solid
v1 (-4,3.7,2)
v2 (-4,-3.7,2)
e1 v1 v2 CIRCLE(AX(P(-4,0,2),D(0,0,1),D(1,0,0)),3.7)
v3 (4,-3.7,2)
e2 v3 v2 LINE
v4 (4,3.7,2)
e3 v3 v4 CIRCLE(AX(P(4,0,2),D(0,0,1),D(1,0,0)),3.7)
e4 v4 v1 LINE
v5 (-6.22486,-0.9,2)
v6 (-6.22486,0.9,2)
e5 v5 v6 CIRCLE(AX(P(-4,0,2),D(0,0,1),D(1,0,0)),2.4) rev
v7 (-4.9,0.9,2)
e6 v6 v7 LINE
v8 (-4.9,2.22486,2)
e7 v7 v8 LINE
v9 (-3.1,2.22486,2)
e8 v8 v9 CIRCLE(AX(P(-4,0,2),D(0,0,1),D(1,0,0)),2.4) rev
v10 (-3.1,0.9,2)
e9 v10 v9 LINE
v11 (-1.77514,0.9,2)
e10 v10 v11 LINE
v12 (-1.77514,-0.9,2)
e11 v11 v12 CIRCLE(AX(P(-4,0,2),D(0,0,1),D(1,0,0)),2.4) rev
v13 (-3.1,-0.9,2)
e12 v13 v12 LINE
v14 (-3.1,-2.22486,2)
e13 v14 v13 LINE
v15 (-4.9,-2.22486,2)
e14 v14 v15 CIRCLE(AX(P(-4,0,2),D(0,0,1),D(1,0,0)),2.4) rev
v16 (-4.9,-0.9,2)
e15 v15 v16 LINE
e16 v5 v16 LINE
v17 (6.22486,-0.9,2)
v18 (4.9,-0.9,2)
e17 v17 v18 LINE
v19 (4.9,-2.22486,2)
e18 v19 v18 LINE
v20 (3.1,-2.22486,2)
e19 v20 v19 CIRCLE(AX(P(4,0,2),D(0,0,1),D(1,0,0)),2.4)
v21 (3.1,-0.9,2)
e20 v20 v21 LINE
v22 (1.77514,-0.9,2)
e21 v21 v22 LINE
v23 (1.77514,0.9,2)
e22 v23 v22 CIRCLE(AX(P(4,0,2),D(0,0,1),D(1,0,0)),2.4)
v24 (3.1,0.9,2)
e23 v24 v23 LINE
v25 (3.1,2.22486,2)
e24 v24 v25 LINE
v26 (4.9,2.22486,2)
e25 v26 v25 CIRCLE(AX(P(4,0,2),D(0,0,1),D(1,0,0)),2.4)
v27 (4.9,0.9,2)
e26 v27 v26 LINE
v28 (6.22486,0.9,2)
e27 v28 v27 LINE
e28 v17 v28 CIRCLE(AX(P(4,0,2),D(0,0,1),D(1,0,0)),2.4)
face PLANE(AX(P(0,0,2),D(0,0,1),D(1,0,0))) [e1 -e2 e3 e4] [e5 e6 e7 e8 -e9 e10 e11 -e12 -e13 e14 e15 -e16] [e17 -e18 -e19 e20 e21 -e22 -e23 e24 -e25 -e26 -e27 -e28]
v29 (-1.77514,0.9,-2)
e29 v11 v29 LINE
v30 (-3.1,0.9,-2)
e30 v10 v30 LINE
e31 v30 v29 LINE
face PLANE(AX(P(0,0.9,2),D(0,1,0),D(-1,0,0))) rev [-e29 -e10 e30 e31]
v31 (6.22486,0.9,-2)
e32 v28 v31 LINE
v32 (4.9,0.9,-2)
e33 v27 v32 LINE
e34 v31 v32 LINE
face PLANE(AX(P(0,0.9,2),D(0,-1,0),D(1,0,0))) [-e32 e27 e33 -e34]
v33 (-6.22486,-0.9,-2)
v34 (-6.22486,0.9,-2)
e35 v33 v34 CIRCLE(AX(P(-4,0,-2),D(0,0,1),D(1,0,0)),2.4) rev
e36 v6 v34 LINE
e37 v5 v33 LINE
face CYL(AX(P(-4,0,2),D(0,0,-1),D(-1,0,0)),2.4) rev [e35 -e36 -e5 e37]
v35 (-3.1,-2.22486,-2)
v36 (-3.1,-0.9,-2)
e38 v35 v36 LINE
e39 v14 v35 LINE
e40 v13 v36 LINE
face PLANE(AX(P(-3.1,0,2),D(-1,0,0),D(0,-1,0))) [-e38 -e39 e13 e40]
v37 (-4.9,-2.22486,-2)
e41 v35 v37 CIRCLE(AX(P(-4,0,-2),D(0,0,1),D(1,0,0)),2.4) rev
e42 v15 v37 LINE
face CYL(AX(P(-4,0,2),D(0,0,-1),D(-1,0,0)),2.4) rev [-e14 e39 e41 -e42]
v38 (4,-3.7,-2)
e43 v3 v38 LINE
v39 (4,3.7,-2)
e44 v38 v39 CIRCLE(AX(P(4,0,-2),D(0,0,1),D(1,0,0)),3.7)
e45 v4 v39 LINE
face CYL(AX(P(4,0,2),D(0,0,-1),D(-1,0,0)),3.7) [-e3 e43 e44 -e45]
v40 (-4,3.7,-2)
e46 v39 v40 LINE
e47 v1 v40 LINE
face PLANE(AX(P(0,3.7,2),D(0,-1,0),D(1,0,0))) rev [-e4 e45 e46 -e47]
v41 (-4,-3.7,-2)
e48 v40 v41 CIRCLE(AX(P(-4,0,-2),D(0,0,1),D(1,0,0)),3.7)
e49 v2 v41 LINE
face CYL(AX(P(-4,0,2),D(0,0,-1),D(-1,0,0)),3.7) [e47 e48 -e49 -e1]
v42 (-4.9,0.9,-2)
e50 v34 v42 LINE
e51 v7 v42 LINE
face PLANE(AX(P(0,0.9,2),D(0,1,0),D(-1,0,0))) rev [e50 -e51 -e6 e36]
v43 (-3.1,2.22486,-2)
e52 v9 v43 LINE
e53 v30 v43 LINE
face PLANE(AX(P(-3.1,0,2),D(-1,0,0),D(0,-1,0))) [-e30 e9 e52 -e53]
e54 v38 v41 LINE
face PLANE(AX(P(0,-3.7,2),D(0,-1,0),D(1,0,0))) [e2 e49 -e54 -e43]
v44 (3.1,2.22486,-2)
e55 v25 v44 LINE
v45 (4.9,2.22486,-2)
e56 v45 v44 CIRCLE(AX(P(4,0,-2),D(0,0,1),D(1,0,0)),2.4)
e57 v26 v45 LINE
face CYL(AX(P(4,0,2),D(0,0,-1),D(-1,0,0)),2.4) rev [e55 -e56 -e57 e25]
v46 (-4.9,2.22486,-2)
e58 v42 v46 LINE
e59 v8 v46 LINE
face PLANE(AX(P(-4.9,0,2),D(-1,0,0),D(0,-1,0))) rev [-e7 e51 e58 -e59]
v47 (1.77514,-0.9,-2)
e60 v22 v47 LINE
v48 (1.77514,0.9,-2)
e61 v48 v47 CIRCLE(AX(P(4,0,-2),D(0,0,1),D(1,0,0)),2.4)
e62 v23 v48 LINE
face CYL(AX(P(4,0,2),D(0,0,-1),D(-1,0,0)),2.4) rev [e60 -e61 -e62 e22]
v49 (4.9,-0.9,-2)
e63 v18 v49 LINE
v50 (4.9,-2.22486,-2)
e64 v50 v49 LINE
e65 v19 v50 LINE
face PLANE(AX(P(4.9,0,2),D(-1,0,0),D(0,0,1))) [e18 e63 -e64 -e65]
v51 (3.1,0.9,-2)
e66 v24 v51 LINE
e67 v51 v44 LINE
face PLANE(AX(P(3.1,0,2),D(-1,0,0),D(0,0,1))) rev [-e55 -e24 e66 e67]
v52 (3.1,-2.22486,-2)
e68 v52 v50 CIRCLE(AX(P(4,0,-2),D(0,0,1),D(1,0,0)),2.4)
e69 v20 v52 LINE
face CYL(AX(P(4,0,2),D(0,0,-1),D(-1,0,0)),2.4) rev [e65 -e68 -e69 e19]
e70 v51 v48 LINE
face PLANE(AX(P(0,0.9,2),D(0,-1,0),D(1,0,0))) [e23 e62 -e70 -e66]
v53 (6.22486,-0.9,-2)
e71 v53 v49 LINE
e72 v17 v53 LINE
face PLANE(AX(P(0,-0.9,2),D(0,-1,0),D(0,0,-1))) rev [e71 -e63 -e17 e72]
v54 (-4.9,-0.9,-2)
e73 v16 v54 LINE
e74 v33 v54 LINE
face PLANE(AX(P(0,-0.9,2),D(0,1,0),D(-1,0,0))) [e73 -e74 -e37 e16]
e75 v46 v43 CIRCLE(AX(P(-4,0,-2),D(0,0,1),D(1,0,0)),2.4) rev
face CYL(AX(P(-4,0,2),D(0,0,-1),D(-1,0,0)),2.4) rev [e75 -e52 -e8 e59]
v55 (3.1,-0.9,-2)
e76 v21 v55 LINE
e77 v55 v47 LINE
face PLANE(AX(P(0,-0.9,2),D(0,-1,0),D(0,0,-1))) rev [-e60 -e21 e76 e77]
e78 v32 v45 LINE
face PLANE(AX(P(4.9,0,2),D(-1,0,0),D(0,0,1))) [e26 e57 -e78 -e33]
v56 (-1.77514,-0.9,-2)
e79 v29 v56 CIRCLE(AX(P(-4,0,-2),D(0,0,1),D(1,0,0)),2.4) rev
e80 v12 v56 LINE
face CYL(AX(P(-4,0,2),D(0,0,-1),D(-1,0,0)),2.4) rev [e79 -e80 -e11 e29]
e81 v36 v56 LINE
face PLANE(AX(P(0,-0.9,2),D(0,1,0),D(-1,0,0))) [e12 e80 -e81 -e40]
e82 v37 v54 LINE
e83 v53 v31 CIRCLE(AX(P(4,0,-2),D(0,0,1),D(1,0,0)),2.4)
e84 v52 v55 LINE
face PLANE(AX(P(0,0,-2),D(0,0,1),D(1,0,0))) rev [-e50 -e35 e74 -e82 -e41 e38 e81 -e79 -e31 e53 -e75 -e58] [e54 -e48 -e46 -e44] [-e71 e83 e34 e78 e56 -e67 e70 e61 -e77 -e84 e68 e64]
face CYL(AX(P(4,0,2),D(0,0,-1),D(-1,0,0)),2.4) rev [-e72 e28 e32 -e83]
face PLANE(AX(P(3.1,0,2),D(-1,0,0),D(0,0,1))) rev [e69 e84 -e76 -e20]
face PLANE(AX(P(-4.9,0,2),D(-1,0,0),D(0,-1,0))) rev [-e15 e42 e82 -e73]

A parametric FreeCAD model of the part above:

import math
import FreeCAD as App
import Part
import Sketcher
from FreeCAD import Vector

doc = App.newDocument("Part")
body = doc.addObject("PartDesign::Body", "Body")

sketch1 = body.newObject("Sketcher::SketchObject", "Sketch")
sketch1.AttachmentSupport = (doc.getObject("XY_Plane"), [""])
sketch1.MapMode = "FlatFace"
sketch1.addGeometry(Part.LineSegment(Vector(-4, -3.7, 0), Vector(4, -3.7, 0)), False)
sketch1.addGeometry(Part.ArcOfCircle(Part.Circle(Vector(4, 0, 0), Vector(0, 0, 1), 3.7), math.radians(-90), math.radians(90)), False)
sketch1.addGeometry(Part.LineSegment(Vector(4, 3.7, 0), Vector(-4, 3.7, 0)), False)
sketch1.addGeometry(Part.ArcOfCircle(Part.Circle(Vector(-4, 0, 0), Vector(0, 0, 1), 3.7), math.radians(90), math.radians(270)), False)
sketch1.addGeometry(Part.LineSegment(Vector(4.9, -0.9, 0), Vector(4.9, -2.22486, 0)), False)
sketch1.addGeometry(Part.ArcOfCircle(Part.Circle(Vector(4, 0, 0), Vector(0, 0, 1), 2.4), math.radians(-112.024313), math.radians(-67.975687)), False)
sketch1.addGeometry(Part.LineSegment(Vector(3.1, -2.22486, 0), Vector(3.1, -0.9, 0)), False)
sketch1.addGeometry(Part.LineSegment(Vector(3.1, -0.9, 0), Vector(1.77514, -0.9, 0)), False)
sketch1.addGeometry(Part.ArcOfCircle(Part.Circle(Vector(4, 0, 0), Vector(0, 0, 1), 2.4), math.radians(157.975687), math.radians(202.024313)), False)
sketch1.addGeometry(Part.LineSegment(Vector(1.77514, 0.9, 0), Vector(3.1, 0.9, 0)), False)
sketch1.addGeometry(Part.LineSegment(Vector(3.1, 0.9, 0), Vector(3.1, 2.22486, 0)), False)
sketch1.addGeometry(Part.ArcOfCircle(Part.Circle(Vector(4, 0, 0), Vector(0, 0, 1), 2.4), math.radians(67.975687), math.radians(112.024313)), False)
sketch1.addGeometry(Part.LineSegment(Vector(4.9, 2.22486, 0), Vector(4.9, 0.9, 0)), False)
sketch1.addGeometry(Part.LineSegment(Vector(4.9, 0.9, 0), Vector(6.22486, 0.9, 0)), False)
sketch1.addGeometry(Part.ArcOfCircle(Part.Circle(Vector(4, 0, 0), Vector(0, 0, 1), 2.4), math.radians(-22.024313), math.radians(22.024313)), False)
sketch1.addGeometry(Part.LineSegment(Vector(6.22486, -0.9, 0), Vector(4.9, -0.9, 0)), False)
sketch1.addGeometry(Part.ArcOfCircle(Part.Circle(Vector(-4, 0, 0), Vector(0, 0, 1), 2.4), math.radians(67.975687), math.radians(112.024313)), False)
sketch1.addGeometry(Part.LineSegment(Vector(-3.1, 2.22486, 0), Vector(-3.1, 0.9, 0)), False)
sketch1.addGeometry(Part.LineSegment(Vector(-3.1, 0.9, 0), Vector(-1.77514, 0.9, 0)), False)
sketch1.addGeometry(Part.ArcOfCircle(Part.Circle(Vector(-4, 0, 0), Vector(0, 0, 1), 2.4), math.radians(-22.024313), math.radians(22.024313)), False)
sketch1.addGeometry(Part.LineSegment(Vector(-1.77514, -0.9, 0), Vector(-3.1, -0.9, 0)), False)
sketch1.addGeometry(Part.LineSegment(Vector(-3.1, -0.9, 0), Vector(-3.1, -2.22486, 0)), False)
sketch1.addGeometry(Part.ArcOfCircle(Part.Circle(Vector(-4, 0, 0), Vector(0, 0, 1), 2.4), math.radians(-112.024313), math.radians(-67.975687)), False)
sketch1.addGeometry(Part.LineSegment(Vector(-4.9, -2.22486, 0), Vector(-4.9, -0.9, 0)), False)
sketch1.addGeometry(Part.LineSegment(Vector(-4.9, -0.9, 0), Vector(-6.22486, -0.9, 0)), False)
sketch1.addGeometry(Part.ArcOfCircle(Part.Circle(Vector(-4, 0, 0), Vector(0, 0, 1), 2.4), math.radians(157.975687), math.radians(202.024313)), False)
sketch1.addGeometry(Part.LineSegment(Vector(-6.22486, 0.9, 0), Vector(-4.9, 0.9, 0)), False)
sketch1.addGeometry(Part.LineSegment(Vector(-4.9, 0.9, 0), Vector(-4.9, 2.22486, 0)), False)
sketch1.addConstraint(Sketcher.Constraint("Tangent", 0, 2, 1, 1))
sketch1.addConstraint(Sketcher.Constraint("Tangent", 1, 2, 2, 1))
sketch1.addConstraint(Sketcher.Constraint("Tangent", 2, 2, 3, 1))
sketch1.addConstraint(Sketcher.Constraint("Tangent", 3, 2, 0, 1))
sketch1.addConstraint(Sketcher.Constraint("Coincident", 4, 2, 5, 2))
sketch1.addConstraint(Sketcher.Constraint("Coincident", 5, 1, 6, 1))
sketch1.addConstraint(Sketcher.Constraint("Coincident", 6, 2, 7, 1))
sketch1.addConstraint(Sketcher.Constraint("Coincident", 7, 2, 8, 2))
sketch1.addConstraint(Sketcher.Constraint("Coincident", 8, 1, 9, 1))
sketch1.addConstraint(Sketcher.Constraint("Coincident", 9, 2, 10, 1))
sketch1.addConstraint(Sketcher.Constraint("Coincident", 10, 2, 11, 2))
sketch1.addConstraint(Sketcher.Constraint("Coincident", 11, 1, 12, 1))
sketch1.addConstraint(Sketcher.Constraint("Coincident", 12, 2, 13, 1))
sketch1.addConstraint(Sketcher.Constraint("Coincident", 13, 2, 14, 2))
sketch1.addConstraint(Sketcher.Constraint("Coincident", 14, 1, 15, 1))
sketch1.addConstraint(Sketcher.Constraint("Coincident", 15, 2, 4, 1))
sketch1.addConstraint(Sketcher.Constraint("Coincident", 16, 1, 17, 1))
sketch1.addConstraint(Sketcher.Constraint("Coincident", 17, 2, 18, 1))
sketch1.addConstraint(Sketcher.Constraint("Coincident", 18, 2, 19, 2))
sketch1.addConstraint(Sketcher.Constraint("Coincident", 19, 1, 20, 1))
sketch1.addConstraint(Sketcher.Constraint("Coincident", 20, 2, 21, 1))
sketch1.addConstraint(Sketcher.Constraint("Coincident", 21, 2, 22, 2))
sketch1.addConstraint(Sketcher.Constraint("Coincident", 22, 1, 23, 1))
sketch1.addConstraint(Sketcher.Constraint("Coincident", 23, 2, 24, 1))
sketch1.addConstraint(Sketcher.Constraint("Coincident", 24, 2, 25, 2))
sketch1.addConstraint(Sketcher.Constraint("Coincident", 25, 1, 26, 1))
sketch1.addConstraint(Sketcher.Constraint("Coincident", 26, 2, 27, 1))
sketch1.addConstraint(Sketcher.Constraint("Coincident", 27, 2, 16, 2))
sketch1.addConstraint(Sketcher.Constraint("Horizontal", 0))
sketch1.addConstraint(Sketcher.Constraint("Horizontal", 2))
sketch1.addConstraint(Sketcher.Constraint("Vertical", 4))
sketch1.addConstraint(Sketcher.Constraint("Vertical", 6))
sketch1.addConstraint(Sketcher.Constraint("Horizontal", 7))
sketch1.addConstraint(Sketcher.Constraint("Horizontal", 9))
sketch1.addConstraint(Sketcher.Constraint("Vertical", 10))
sketch1.addConstraint(Sketcher.Constraint("Vertical", 12))
sketch1.addConstraint(Sketcher.Constraint("Horizontal", 13))
sketch1.addConstraint(Sketcher.Constraint("Horizontal", 15))
sketch1.addConstraint(Sketcher.Constraint("Vertical", 17))
sketch1.addConstraint(Sketcher.Constraint("Horizontal", 18))
sketch1.addConstraint(Sketcher.Constraint("Horizontal", 20))
sketch1.addConstraint(Sketcher.Constraint("Vertical", 21))
sketch1.addConstraint(Sketcher.Constraint("Vertical", 23))
sketch1.addConstraint(Sketcher.Constraint("Horizontal", 24))
sketch1.addConstraint(Sketcher.Constraint("Horizontal", 26))
sketch1.addConstraint(Sketcher.Constraint("Vertical", 27))
sketch1.addConstraint(Sketcher.Constraint("Coincident", 5, 3, 1, 3))
sketch1.addConstraint(Sketcher.Constraint("Coincident", 8, 3, 1, 3))
sketch1.addConstraint(Sketcher.Constraint("Coincident", 11, 3, 1, 3))
sketch1.addConstraint(Sketcher.Constraint("Coincident", 14, 3, 1, 3))
sketch1.addConstraint(Sketcher.Constraint("Coincident", 16, 3, 3, 3))
sketch1.addConstraint(Sketcher.Constraint("Coincident", 19, 3, 3, 3))
sketch1.addConstraint(Sketcher.Constraint("Coincident", 22, 3, 3, 3))
sketch1.addConstraint(Sketcher.Constraint("Coincident", 25, 3, 3, 3))
sketch1.addConstraint(Sketcher.Constraint("Equal", 5, 8))
sketch1.addConstraint(Sketcher.Constraint("Equal", 8, 11))
sketch1.addConstraint(Sketcher.Constraint("Equal", 11, 14))
sketch1.addConstraint(Sketcher.Constraint("Equal", 14, 16))
sketch1.addConstraint(Sketcher.Constraint("Equal", 16, 19))
sketch1.addConstraint(Sketcher.Constraint("Equal", 19, 22))
sketch1.addConstraint(Sketcher.Constraint("Equal", 22, 25))
sketch1.addConstraint(Sketcher.Constraint("Symmetric", 1, 3, 3, 3, -1, 1))
sketch1.addConstraint(Sketcher.Constraint("Symmetric", 6, 2, 17, 2, -1, 1))
sketch1.addConstraint(Sketcher.Constraint("Symmetric", 9, 2, 20, 2, -1, 1))
sketch1.addConstraint(Sketcher.Constraint("Symmetric", 12, 2, 23, 2, -1, 1))
sketch1.addConstraint(Sketcher.Constraint("Symmetric", 15, 2, 26, 2, -1, 1))
sketch1.addConstraint(Sketcher.Constraint("Symmetric", 9, 2, 17, 2, -2))
sketch1.addConstraint(Sketcher.Constraint("Symmetric", 15, 2, 23, 2, -2))
sketch1.addConstraint(Sketcher.Constraint("Horizontal", 4, 2, 5, 1))
sketch1.addConstraint(Sketcher.Constraint("Horizontal", 9, 2, 12, 2))
sketch1.addConstraint(Sketcher.Constraint("Equal", 26, 4))
sketch1.addConstraint(Sketcher.Constraint("Radius", 1, 3.7))
sketch1.addConstraint(Sketcher.Constraint("Radius", 5, 2.4))
sketch1.addConstraint(Sketcher.Constraint("DistanceX", 0, 1, 0, 2, 8.0))
sketch1.addConstraint(Sketcher.Constraint("DistanceX", -1, 1, 4, 2, 4.9))
pad1 = body.newObject("PartDesign::Pad", "Pad")
pad1.Profile = sketch1
pad1.Length = 4
pad1.Midplane = True

doc.recompute()
